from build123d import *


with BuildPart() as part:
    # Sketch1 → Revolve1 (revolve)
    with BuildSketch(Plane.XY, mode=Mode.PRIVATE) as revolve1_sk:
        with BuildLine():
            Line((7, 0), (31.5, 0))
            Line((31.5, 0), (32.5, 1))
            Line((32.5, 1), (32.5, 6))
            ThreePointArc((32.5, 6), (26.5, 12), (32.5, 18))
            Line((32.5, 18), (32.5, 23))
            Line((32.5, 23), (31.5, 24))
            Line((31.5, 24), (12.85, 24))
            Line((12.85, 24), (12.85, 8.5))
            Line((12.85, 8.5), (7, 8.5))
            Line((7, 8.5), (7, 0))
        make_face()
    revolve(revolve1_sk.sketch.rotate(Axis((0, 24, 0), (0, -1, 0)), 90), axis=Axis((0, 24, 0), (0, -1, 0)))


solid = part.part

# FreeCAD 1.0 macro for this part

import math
import FreeCAD as App
import Part
import Sketcher
from FreeCAD import Vector
Q = App.Units.Quantity

doc = App.newDocument("Part")
params = doc.addObject("Spreadsheet::Sheet", "Params")
for row, (alias, value) in enumerate([
    ("sketch1_radius", "6 mm"),
    ("sketch1_height", "5 mm"),
    ("sketch1_width", "24.5 mm"),
    ("sketch1_height2", "15.5 mm"),
    ("sketch1_height3", "8.5 mm"),
    ("revolution_angle", "360 deg"),
], start=1):
    params.set(f"A{row}", alias)
    params.set(f"B{row}", "=" + value)
    params.setAlias(f"B{row}", alias)

body = doc.addObject("PartDesign::Body", "Body")

# Sketch on XY plane
sketch1 = body.newObject("Sketcher::SketchObject", "Sketch")
sketch1.AttachmentSupport = (doc.getObject("XY_Plane"), [""])
sketch1.MapMode = "FlatFace"
sketch1.addGeometry(Part.LineSegment(Vector(7, 0, 0), Vector(31.5, 0, 0)), False)
sketch1.addGeometry(Part.LineSegment(Vector(31.5, 0, 0), Vector(32.5, 1, 0)), False)
sketch1.addGeometry(Part.LineSegment(Vector(32.5, 1, 0), Vector(32.5, 6, 0)), False)
sketch1.addGeometry(Part.ArcOfCircle(Part.Circle(Vector(32.5, 12, 0), Vector(0, 0, 1), 6), math.radians(90), math.radians(270)), False)
sketch1.addGeometry(Part.LineSegment(Vector(32.5, 18, 0), Vector(32.5, 23, 0)), False)
sketch1.addGeometry(Part.LineSegment(Vector(32.5, 23, 0), Vector(31.5, 24, 0)), False)
sketch1.addGeometry(Part.LineSegment(Vector(31.5, 24, 0), Vector(12.8, 24, 0)), False)
sketch1.addGeometry(Part.LineSegment(Vector(12.8, 24, 0), Vector(12.8, 8.5, 0)), False)
sketch1.addGeometry(Part.LineSegment(Vector(12.8, 8.5, 0), Vector(7, 8.5, 0)), False)
sketch1.addGeometry(Part.LineSegment(Vector(7, 8.5, 0), Vector(7, 0, 0)), False)
sketch1.addConstraint(Sketcher.Constraint("Coincident", 0, 2, 1, 1))
sketch1.addConstraint(Sketcher.Constraint("Coincident", 1, 2, 2, 1))
sketch1.addConstraint(Sketcher.Constraint("Coincident", 2, 2, 3, 2))
sketch1.addConstraint(Sketcher.Constraint("Coincident", 3, 1, 4, 1))
sketch1.addConstraint(Sketcher.Constraint("Coincident", 4, 2, 5, 1))
sketch1.addConstraint(Sketcher.Constraint("Coincident", 5, 2, 6, 1))
sketch1.addConstraint(Sketcher.Constraint("Coincident", 6, 2, 7, 1))
sketch1.addConstraint(Sketcher.Constraint("Coincident", 7, 2, 8, 1))
sketch1.addConstraint(Sketcher.Constraint("Coincident", 8, 2, 9, 1))
sketch1.addConstraint(Sketcher.Constraint("Coincident", 9, 2, 0, 1))
sketch1.addConstraint(Sketcher.Constraint("Horizontal", 0))
sketch1.addConstraint(Sketcher.Constraint("Vertical", 2))
sketch1.addConstraint(Sketcher.Constraint("Vertical", 4))
sketch1.addConstraint(Sketcher.Constraint("Horizontal", 6))
sketch1.addConstraint(Sketcher.Constraint("Vertical", 7))
sketch1.addConstraint(Sketcher.Constraint("Horizontal", 8))
sketch1.addConstraint(Sketcher.Constraint("Vertical", 9))
sketch1.addConstraint(Sketcher.Constraint("PointOnObject", 0, 2, -1))
sketch1.addConstraint(Sketcher.Constraint("Perpendicular", 1, 5))
sketch1.addConstraint(Sketcher.Constraint("Vertical", 3, 3, 1, 2))
sketch1.addConstraint(Sketcher.Constraint("Vertical", 2, 2, 3, 1))
sketch1.addConstraint(Sketcher.Constraint("Vertical", 0, 2, 5, 2))
sketch1.addConstraint(Sketcher.Constraint("Equal", 2, 4))
sketch1.addConstraint(Sketcher.Constraint("Equal", 1, 5))
sketch1.addConstraint(Sketcher.Constraint("Radius", 3, Q("6 mm")))
sketch1.addConstraint(Sketcher.Constraint("DistanceY", 2, 1, 2, 2, Q("5 mm")))
sketch1.addConstraint(Sketcher.Constraint("DistanceX", 0, 1, 0, 2, Q("24.5 mm")))
sketch1.addConstraint(Sketcher.Constraint("DistanceY", 7, 2, 7, 1, Q("15.5 mm")))
sketch1.addConstraint(Sketcher.Constraint("DistanceY", 9, 2, 9, 1, Q("8.5 mm")))
sketch1.addConstraint(Sketcher.Constraint("DistanceX", -1, 1, 8, 2, Q("7 mm")))
sketch1.addConstraint(Sketcher.Constraint("DistanceX", 6, 2, 6, 1, Q("18.65 mm")))
sketch1.setExpression("Constraints[24]", "Params.sketch1_radius")
sketch1.setExpression("Constraints[25]", "Params.sketch1_height")
sketch1.setExpression("Constraints[26]", "Params.sketch1_width")
sketch1.setExpression("Constraints[27]", "Params.sketch1_height2")
sketch1.setExpression("Constraints[28]", "Params.sketch1_height3")
revolution = body.newObject("PartDesign::Revolution", "Revolution")
revolution.Profile = sketch1
revolution.ReferenceAxis = (sketch1, ["V_Axis"])
revolution.setExpression("Angle", "Params.revolution_angle")

doc.recompute()
